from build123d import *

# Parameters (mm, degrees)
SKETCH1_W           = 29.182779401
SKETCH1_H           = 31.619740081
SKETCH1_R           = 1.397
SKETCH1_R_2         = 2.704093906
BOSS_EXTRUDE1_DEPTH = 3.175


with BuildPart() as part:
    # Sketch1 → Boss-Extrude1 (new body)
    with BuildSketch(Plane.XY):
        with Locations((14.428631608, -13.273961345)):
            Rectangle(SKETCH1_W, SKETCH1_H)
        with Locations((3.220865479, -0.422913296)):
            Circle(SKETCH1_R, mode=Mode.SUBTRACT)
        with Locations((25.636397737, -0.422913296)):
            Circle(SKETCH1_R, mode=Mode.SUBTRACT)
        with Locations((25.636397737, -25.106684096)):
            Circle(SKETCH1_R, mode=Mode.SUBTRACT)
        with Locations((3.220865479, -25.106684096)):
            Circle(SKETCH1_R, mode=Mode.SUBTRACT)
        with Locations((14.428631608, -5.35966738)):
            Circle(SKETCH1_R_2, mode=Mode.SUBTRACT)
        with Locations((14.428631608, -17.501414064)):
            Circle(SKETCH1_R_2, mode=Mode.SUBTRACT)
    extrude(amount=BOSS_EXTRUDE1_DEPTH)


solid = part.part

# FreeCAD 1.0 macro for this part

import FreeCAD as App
import Part
import Sketcher
from FreeCAD import Vector
Q = App.Units.Quantity

doc = App.newDocument("Part")
body = doc.addObject("PartDesign::Body", "Body")

# Sketch on XY plane
sketch1 = doc.addObject("Sketcher::SketchObject", "Sketch")
body.addObject(sketch1)
sketch1.AttachmentSupport = (doc.XY_Plane, [""])
sketch1.MapMode = "FlatFace"
sketch1.addGeometry([
    Part.LineSegment(Vector(-0.2, 2.5, 0), Vector(-0.2, -29.1, 0)),  # 0
    Part.LineSegment(Vector(-0.2, -29.1, 0), Vector(29, -29.1, 0)),  # 1
    Part.LineSegment(Vector(29, -29.1, 0), Vector(29, 2.5, 0)),  # 2
    Part.LineSegment(Vector(29, 2.5, 0), Vector(-0.2, 2.5, 0)),  # 3
    Part.Circle(Vector(3.2, -25.1, 0), Vector(0, 0, 1), 1.4),  # 4
    Part.Circle(Vector(25.6, -25.1, 0), Vector(0, 0, 1), 1.4),  # 5
    Part.Circle(Vector(14.4, -17.5, 0), Vector(0, 0, 1), 2.7),  # 6
    Part.Circle(Vector(3.2, -0.4, 0), Vector(0, 0, 1), 1.4),  # 7
    Part.Circle(Vector(14.4, -5.4, 0), Vector(0, 0, 1), 2.7),  # 8
    Part.Circle(Vector(25.6, -0.4, 0), Vector(0, 0, 1), 1.4),  # 9
], False)
sketch1.addConstraint([
    Sketcher.Constraint("Coincident", 0, 2, 1, 1),
    Sketcher.Constraint("Coincident", 1, 2, 2, 1),
    Sketcher.Constraint("Coincident", 2, 2, 3, 1),
    Sketcher.Constraint("Coincident", 3, 2, 0, 1),
    Sketcher.Constraint("Vertical", 0),
    Sketcher.Constraint("Horizontal", 1),
    Sketcher.Constraint("Vertical", 2),
    Sketcher.Constraint("Horizontal", 3),
    Sketcher.Constraint("Equal", 4, 5),
    Sketcher.Constraint("Equal", 5, 7),
    Sketcher.Constraint("Equal", 6, 8),
    Sketcher.Constraint("Equal", 7, 9),
    Sketcher.Constraint("Horizontal", 4, 3, 5, 3),
    Sketcher.Constraint("Horizontal", 7, 3, 9, 3),
    Sketcher.Constraint("Vertical", 4, 3, 7, 3),
    Sketcher.Constraint("Vertical", 6, 3, 8, 3),
    Sketcher.Constraint("Vertical", 5, 3, 9, 3),
    Sketcher.Constraint("Diameter", 4, Q("0.11 in")),
    Sketcher.Constraint("Diameter", 6, Q("5.408188 mm")),
    Sketcher.Constraint("DistanceX", 1, 1, 1, 2, Q("29.182779 mm")),
    Sketcher.Constraint("DistanceY", 0, 2, 0, 1, Q("31.61974 mm")),
    Sketcher.Constraint("DistanceY", 6, 3, 7, 3, Q("17.078501 mm")),
    Sketcher.Constraint("DistanceX", -1, 1, 6, 3, Q("14.428632 mm")),
    Sketcher.Constraint("DistanceX", 0, 2, -1, 1, Q("0.162758 mm")),
    Sketcher.Constraint("DistanceY", 0, 2, -1, 1, Q("29.083831 mm")),
    Sketcher.Constraint("DistanceY", 4, 3, 6, 3, Q("7.60527 mm")),
    Sketcher.Constraint("DistanceY", 0, 2, 7, 3, Q("28.660918 mm")),
    Sketcher.Constraint("DistanceX", -1, 1, 4, 3, Q("3.220865 mm")),
    Sketcher.Constraint("DistanceX", -1, 1, 5, 3, Q("25.636398 mm")),
    Sketcher.Constraint("DistanceY", 8, 3, -1, 1, Q("5.359667 mm")),
])
pad1 = doc.addObject("PartDesign::Pad", "Pad")
body.addObject(pad1)
pad1.Profile = sketch1
pad1.Length = Q("0.125 in")

doc.recompute()
